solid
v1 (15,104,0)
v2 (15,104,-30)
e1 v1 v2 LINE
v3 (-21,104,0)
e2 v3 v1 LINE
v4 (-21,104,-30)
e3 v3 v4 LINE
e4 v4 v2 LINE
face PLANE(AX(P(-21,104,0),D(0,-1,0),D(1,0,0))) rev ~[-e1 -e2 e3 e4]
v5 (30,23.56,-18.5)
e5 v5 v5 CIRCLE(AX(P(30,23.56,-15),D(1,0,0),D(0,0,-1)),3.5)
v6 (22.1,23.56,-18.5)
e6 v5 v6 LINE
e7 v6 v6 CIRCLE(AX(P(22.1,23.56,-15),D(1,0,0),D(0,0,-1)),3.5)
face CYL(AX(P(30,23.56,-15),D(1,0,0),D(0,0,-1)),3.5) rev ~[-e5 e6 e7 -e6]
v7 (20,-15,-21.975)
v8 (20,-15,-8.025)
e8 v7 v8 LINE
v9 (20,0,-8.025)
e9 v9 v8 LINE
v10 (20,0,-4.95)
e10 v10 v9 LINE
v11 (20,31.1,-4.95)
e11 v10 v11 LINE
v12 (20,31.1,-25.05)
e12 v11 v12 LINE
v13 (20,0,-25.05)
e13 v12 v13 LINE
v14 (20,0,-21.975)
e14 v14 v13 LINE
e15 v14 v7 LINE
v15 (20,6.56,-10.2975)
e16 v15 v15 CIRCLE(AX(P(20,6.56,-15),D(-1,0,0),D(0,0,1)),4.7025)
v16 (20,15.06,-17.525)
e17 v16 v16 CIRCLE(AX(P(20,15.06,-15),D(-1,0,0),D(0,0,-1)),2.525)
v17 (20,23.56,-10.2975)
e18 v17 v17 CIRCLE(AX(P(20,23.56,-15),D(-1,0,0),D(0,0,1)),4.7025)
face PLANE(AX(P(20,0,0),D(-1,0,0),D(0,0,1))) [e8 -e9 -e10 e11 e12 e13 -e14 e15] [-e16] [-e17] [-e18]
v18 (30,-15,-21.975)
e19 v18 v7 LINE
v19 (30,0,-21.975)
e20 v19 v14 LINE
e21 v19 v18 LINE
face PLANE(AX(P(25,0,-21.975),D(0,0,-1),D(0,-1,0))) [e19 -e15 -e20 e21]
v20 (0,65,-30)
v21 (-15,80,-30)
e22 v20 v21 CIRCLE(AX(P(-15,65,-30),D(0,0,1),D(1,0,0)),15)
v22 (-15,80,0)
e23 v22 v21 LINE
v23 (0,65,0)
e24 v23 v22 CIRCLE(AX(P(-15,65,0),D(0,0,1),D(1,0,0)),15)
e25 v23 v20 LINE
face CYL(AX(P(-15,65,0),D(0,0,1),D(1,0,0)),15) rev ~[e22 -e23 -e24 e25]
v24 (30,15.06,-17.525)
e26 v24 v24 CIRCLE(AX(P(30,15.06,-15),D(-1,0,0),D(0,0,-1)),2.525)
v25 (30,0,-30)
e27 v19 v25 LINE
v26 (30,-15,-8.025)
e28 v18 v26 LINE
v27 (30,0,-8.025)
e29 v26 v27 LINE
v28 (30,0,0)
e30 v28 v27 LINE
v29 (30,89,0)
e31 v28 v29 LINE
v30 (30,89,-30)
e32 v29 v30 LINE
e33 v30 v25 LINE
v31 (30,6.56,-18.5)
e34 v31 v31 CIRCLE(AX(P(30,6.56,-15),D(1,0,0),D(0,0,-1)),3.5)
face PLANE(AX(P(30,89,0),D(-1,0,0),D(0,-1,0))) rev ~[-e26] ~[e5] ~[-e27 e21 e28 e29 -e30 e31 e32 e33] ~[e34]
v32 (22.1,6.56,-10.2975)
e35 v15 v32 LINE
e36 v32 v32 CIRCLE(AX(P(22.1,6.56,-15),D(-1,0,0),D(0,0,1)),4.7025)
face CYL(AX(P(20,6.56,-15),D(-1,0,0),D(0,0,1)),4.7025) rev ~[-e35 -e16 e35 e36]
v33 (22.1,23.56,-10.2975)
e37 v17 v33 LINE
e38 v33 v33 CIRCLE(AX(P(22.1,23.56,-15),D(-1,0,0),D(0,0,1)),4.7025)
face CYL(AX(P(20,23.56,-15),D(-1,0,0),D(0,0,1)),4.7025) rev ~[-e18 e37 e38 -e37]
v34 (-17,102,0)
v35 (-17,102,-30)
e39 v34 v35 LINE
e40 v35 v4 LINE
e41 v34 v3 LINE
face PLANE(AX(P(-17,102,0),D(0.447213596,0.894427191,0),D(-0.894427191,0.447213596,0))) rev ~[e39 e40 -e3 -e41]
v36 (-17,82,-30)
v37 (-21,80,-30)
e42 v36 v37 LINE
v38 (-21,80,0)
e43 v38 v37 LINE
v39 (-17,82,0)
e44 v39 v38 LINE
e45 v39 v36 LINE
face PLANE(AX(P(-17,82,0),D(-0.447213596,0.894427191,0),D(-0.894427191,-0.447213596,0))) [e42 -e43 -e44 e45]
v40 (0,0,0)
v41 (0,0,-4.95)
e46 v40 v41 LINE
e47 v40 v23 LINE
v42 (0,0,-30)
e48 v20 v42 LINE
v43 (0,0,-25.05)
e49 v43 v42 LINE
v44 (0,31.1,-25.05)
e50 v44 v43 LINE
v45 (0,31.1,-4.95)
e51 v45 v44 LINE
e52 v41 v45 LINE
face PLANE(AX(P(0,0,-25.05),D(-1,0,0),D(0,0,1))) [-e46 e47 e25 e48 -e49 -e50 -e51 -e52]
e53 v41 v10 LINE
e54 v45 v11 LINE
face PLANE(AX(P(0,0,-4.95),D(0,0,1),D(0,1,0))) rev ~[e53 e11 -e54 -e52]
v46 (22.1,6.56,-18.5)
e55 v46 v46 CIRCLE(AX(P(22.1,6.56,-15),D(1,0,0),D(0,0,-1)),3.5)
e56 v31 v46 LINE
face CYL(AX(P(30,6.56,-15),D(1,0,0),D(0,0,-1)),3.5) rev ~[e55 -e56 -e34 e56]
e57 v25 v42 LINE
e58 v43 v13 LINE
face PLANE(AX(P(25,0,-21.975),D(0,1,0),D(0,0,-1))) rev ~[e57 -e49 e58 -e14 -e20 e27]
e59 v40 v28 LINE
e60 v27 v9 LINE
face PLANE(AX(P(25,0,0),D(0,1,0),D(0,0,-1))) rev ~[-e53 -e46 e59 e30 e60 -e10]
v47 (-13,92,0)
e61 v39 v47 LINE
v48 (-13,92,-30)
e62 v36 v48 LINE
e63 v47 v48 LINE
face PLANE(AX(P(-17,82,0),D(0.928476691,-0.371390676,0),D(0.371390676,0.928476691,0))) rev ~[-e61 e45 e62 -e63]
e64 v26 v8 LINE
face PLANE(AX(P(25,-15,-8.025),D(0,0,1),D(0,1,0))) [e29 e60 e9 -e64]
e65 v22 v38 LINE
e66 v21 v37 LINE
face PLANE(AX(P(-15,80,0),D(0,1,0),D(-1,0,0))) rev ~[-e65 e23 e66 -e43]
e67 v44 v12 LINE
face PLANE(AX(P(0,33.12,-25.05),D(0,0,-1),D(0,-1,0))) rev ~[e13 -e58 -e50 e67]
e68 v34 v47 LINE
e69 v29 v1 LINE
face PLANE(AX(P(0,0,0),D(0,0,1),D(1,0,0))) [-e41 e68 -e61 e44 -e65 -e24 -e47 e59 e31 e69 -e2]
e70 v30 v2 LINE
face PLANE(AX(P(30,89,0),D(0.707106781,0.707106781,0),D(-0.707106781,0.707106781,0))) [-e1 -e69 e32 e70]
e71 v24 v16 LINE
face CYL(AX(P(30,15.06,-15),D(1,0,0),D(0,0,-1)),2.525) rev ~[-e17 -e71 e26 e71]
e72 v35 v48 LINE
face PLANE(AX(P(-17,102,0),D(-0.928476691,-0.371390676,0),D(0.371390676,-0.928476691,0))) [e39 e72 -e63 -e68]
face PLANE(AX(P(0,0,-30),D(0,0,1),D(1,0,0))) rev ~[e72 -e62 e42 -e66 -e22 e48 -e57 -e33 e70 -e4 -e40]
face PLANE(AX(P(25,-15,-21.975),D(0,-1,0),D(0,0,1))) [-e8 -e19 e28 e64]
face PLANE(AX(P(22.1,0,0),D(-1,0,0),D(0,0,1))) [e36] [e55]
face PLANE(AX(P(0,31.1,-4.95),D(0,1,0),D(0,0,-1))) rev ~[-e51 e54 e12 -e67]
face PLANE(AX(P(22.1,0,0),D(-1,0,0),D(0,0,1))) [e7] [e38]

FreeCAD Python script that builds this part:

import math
import FreeCAD as App
import Part
import Sketcher
from FreeCAD import Vector


def add_polygon(sketch, points):
    """Adds a closed chain of lines whose ends are joined by coincident constraints."""
    first, n = sketch.GeometryCount, len(points)
    for a, b in zip(points, points[1:] + points[:1]):
        sketch.addGeometry(Part.LineSegment(App.Vector(*a, 0), App.Vector(*b, 0)), False)
    for i in range(n):
        sketch.addConstraint(Sketcher.Constraint("Coincident", first + i, 2, first + (i + 1) % n, 1))

doc = App.newDocument("Part")
body = doc.addObject("PartDesign::Body", "Body")

sketch1 = body.newObject("Sketcher::SketchObject", "Sketch")
sketch1.AttachmentSupport = (doc.getObject("XY_Plane"), [""])
sketch1.MapMode = "FlatFace"
add_polygon(sketch1, [(0, 40), (0, 0), (25, 0), (25, 40)])
sketch1.addConstraint([
    Sketcher.Constraint("Vertical", 0),
    Sketcher.Constraint("Horizontal", 1),
    Sketcher.Constraint("Vertical", 2),
    Sketcher.Constraint("Horizontal", 3),
    Sketcher.Constraint("Coincident", 0, 2, -1, 1),
    Sketcher.Constraint("DistanceX", 1, 1, 1, 2, 25.0),
    Sketcher.Constraint("DistanceY", 0, 2, 0, 1, 40.0),
])
pad1 = body.newObject("PartDesign::Pad", "Pad")
pad1.Profile = sketch1
pad1.Length = 30
pad1.Reversed = True

sketch2 = body.newObject("Sketcher::SketchObject", "Sketch001")
sketch2.AttachmentSupport = (doc.getObject("YZ_Plane"), [""])
sketch2.MapMode = "FlatFace"
sketch2.AttachmentOffset = App.Placement(Vector(0, 0, 25), App.Rotation())
sketch2.addGeometry(Part.Circle(Vector(6.6, -15, 0), Vector(0, 0, 1), 2.5), False)
sketch2.addConstraint([
    Sketcher.Constraint("Diameter", 0, 4.92),
    Sketcher.Constraint("DistanceY", 0, 3, -1, 1, 15.0),
    Sketcher.Constraint("DistanceX", -1, 1, 0, 3, 6.56),
])
pocket1 = body.newObject("PartDesign::Pocket", "Pocket")
pocket1.Profile = sketch2
pocket1.Length = 30

sketch3 = body.newObject("Sketcher::SketchObject", "Sketch002")
sketch3.AttachmentSupport = (doc.getObject("YZ_Plane"), [""])
sketch3.MapMode = "FlatFace"
add_polygon(sketch3, [(0, -25), (0, -5), (33, -5), (33, -25)])
sketch3.addConstraint([
    Sketcher.Constraint("Vertical", 0),
    Sketcher.Constraint("Horizontal", 1),
    Sketcher.Constraint("Vertical", 2),
    Sketcher.Constraint("Horizontal", 3),
    Sketcher.Constraint("PointOnObject", 0, 2, -2),
    Sketcher.Constraint("DistanceY", 0, 1, 0, 2, 20.1),
    Sketcher.Constraint("DistanceX", 1, 1, 1, 2, 33.12),
    Sketcher.Constraint("DistanceY", 0, 2, -1, 1, 4.95),
])
pocket2 = body.newObject("PartDesign::Pocket", "Pocket001")
pocket2.Profile = sketch3
pocket2.Length = 20
pocket2.Reversed = True

sketch4 = body.newObject("Sketcher::SketchObject", "Sketch003")
sketch4.AttachmentSupport = (doc.getObject("XZ_Plane"), [""])
sketch4.MapMode = "FlatFace"
add_polygon(sketch4, [(25, -8), (20, -8), (20, -22), (25, -22)])
sketch4.addConstraint([
    Sketcher.Constraint("Horizontal", 0),
    Sketcher.Constraint("Vertical", 1),
    Sketcher.Constraint("Horizontal", 2),
    Sketcher.Constraint("Vertical", 3),
    Sketcher.Constraint("DistanceY", 1, 2, 1, 1, 13.95),
    Sketcher.Constraint("DistanceX", 0, 2, 0, 1, 5.0),
    Sketcher.Constraint("DistanceX", -1, 1, 0, 2, 20.0),
    Sketcher.Constraint("DistanceY", 0, 2, -1, 1, 8.025),
])
pad2 = body.newObject("PartDesign::Pad", "Pad001")
pad2.Profile = sketch4
pad2.Length = 15

sketch5 = body.newObject("Sketcher::SketchObject", "Sketch004")
sketch5.AttachmentSupport = (doc.getObject("YZ_Plane"), [""])
sketch5.MapMode = "FlatFace"
sketch5.AttachmentOffset = App.Placement(Vector(0, 0, 20), App.Rotation())
sketch5.addGeometry([
    Part.Circle(Vector(6.6, -15, 0), Vector(0, 0, 1), 4.7),
    Part.Circle(Vector(6.6, -15, 0), Vector(0, 0, 1), 2.5),
], False)
sketch5.addConstraint([
    Sketcher.Constraint("Coincident", 1, 3, 0, 3),
    Sketcher.Constraint("Diameter", 0, 9.405),
    Sketcher.Constraint("Diameter", 1, 4.92),
    Sketcher.Constraint("DistanceY", 0, 3, -1, 1, 15.0),
    Sketcher.Constraint("DistanceX", -1, 1, 0, 3, 6.56),
])
pocket3 = body.newObject("PartDesign::Pocket", "Pocket002")
pocket3.Profile = sketch5
pocket3.Length = 2.1
pocket3.Reversed = True

sketch6 = body.newObject("Sketcher::SketchObject", "Sketch005")
sketch6.AttachmentSupport = (doc.getObject("YZ_Plane"), [""])
sketch6.MapMode = "FlatFace"
sketch6.AttachmentOffset = App.Placement(Vector(0, 0, 25), App.Rotation())
sketch6.addGeometry(Part.Circle(Vector(23.6, -15, 0), Vector(0, 0, 1), 2.5), False)
sketch6.addConstraint([
    Sketcher.Constraint("Diameter", 0, 4.92),
    Sketcher.Constraint("DistanceY", 0, 3, -1, 1, 15.0),
    Sketcher.Constraint("DistanceX", -1, 1, 0, 3, 23.56),
])
pocket4 = body.newObject("PartDesign::Pocket", "Pocket003")
pocket4.Profile = sketch6
pocket4.Length = 10

sketch7 = body.newObject("Sketcher::SketchObject", "Sketch006")
sketch7.AttachmentSupport = (doc.getObject("YZ_Plane"), [""])
sketch7.MapMode = "FlatFace"
sketch7.AttachmentOffset = App.Placement(Vector(0, 0, 20), App.Rotation())
sketch7.addGeometry([
    Part.Circle(Vector(23.6, -15, 0), Vector(0, 0, 1), 4.7),
    Part.Circle(Vector(23.6, -15, 0), Vector(0, 0, 1), 2.5),
], False)
sketch7.addConstraint([
    Sketcher.Constraint("Coincident", 1, 3, 0, 3),
    Sketcher.Constraint("Diameter", 0, 9.405),
    Sketcher.Constraint("Diameter", 1, 4.92),
    Sketcher.Constraint("DistanceY", 0, 3, -1, 1, 15.0),
    Sketcher.Constraint("DistanceX", -1, 1, 0, 3, 23.56),
])
pocket5 = body.newObject("PartDesign::Pocket", "Pocket004")
pocket5.Profile = sketch7
pocket5.Length = 2.1
pocket5.Reversed = True

sketch8 = body.newObject("Sketcher::SketchObject", "Sketch007")
sketch8.AttachmentSupport = (doc.getObject("YZ_Plane"), [""])
sketch8.MapMode = "FlatFace"
sketch8.AttachmentOffset = App.Placement(Vector(0, 0, 25), App.Rotation())
add_polygon(sketch8, [(0, -30), (40, -30), (40, 0), (0, 0), (0, -8), (-15, -8), (-15, -22), (0, -22)])
sketch8.addGeometry(Part.Circle(Vector(6.6, -15, 0), Vector(0, 0, 1), 2.5), False)
sketch8.addGeometry(Part.Circle(Vector(23.6, -15, 0), Vector(0, 0, 1), 2.5), False)
sketch8.addConstraint([
    Sketcher.Constraint("Horizontal", 0),
    Sketcher.Constraint("Vertical", 1),
    Sketcher.Constraint("Horizontal", 2),
    Sketcher.Constraint("Vertical", 3),
    Sketcher.Constraint("Horizontal", 4),
    Sketcher.Constraint("Vertical", 5),
    Sketcher.Constraint("Horizontal", 6),
    Sketcher.Constraint("Vertical", 7),
    Sketcher.Constraint("Coincident", 2, 2, -1, 1),
    Sketcher.Constraint("Equal", 8, 9),
    Sketcher.Constraint("PointOnObject", 6, 2, -2),
    Sketcher.Constraint("Horizontal", 8, 3, 9, 3),
    Sketcher.Constraint("Equal", 3, 7),
    Sketcher.Constraint("Diameter", 8, 4.92),
    Sketcher.Constraint("DistanceX", 0, 1, 0, 2, 40.0),
    Sketcher.Constraint("DistanceX", 4, 2, 4, 1, 15.0),
    Sketcher.Constraint("DistanceY", 1, 1, 1, 2, 30.0),
    Sketcher.Constraint("DistanceY", 8, 3, -1, 1, 15.0),
    Sketcher.Constraint("DistanceX", 8, 3, 9, 3, 17.0),
    Sketcher.Constraint("DistanceY", 5, 2, 5, 1, 13.95),
    Sketcher.Constraint("DistanceX", -1, 1, 8, 3, 6.56),
])
pad3 = body.newObject("PartDesign::Pad", "Pad002")
pad3.Profile = sketch8
pad3.Length = 5

sketch9 = body.newObject("Sketcher::SketchObject", "Sketch008")
sketch9.AttachmentSupport = (doc.getObject("XZ_Plane"), [""])
sketch9.MapMode = "FlatFace"
sketch9.AttachmentOffset = App.Placement(Vector(0, 0, -40), App.Rotation())
add_polygon(sketch9, [(30, -30), (0, -30), (0, 0), (30, 0)])
sketch9.addConstraint([
    Sketcher.Constraint("Horizontal", 0),
    Sketcher.Constraint("Vertical", 1),
    Sketcher.Constraint("Horizontal", 2),
    Sketcher.Constraint("Vertical", 3),
    Sketcher.Constraint("Coincident", 1, 2, -1, 1),
    Sketcher.Constraint("Equal", 2, 1),
    Sketcher.Constraint("DistanceX", 0, 2, 0, 1, 30.0),
])
pad4 = body.newObject("PartDesign::Pad", "Pad003")
pad4.Profile = sketch9
pad4.Length = 10
pad4.Reversed = True

sketch10 = body.newObject("Sketcher::SketchObject", "Sketch009")
sketch10.AttachmentSupport = (doc.getObject("YZ_Plane"), [""])
sketch10.MapMode = "FlatFace"
sketch10.AttachmentOffset = App.Placement(Vector(0, 0, 30), App.Rotation())
sketch10.addGeometry(Part.Circle(Vector(15.1, -15, 0), Vector(0, 0, 1), 2.5), False)
sketch10.addConstraint([
    Sketcher.Constraint("Diameter", 0, 5.05),
    Sketcher.Constraint("DistanceY", 0, 3, -1, 1, 15.0),
    Sketcher.Constraint("DistanceX", -1, 1, 0, 3, 15.06),
])
pocket6 = body.newObject("PartDesign::Pocket", "Pocket005")
pocket6.Profile = sketch10
pocket6.Length = 30

sketch11 = body.newObject("Sketcher::SketchObject", "Sketch010")
sketch11.AttachmentSupport = (doc.getObject("XY_Plane"), [""])
sketch11.MapMode = "FlatFace"
sketch11.addGeometry([
    Part.LineSegment(Vector(0, 50, 0), Vector(30, 50, 0)),
    Part.LineSegment(Vector(30, 50, 0), Vector(30, 89, 0)),
    Part.LineSegment(Vector(30, 89, 0), Vector(15, 104, 0)),
    Part.LineSegment(Vector(15, 104, 0), Vector(-21, 104, 0)),
    Part.LineSegment(Vector(-21, 104, 0), Vector(-17, 102, 0)),
    Part.LineSegment(Vector(-17, 102, 0), Vector(-13, 92, 0)),
    Part.LineSegment(Vector(-13, 92, 0), Vector(-17, 82, 0)),
    Part.LineSegment(Vector(-17, 82, 0), Vector(-21, 80, 0)),
    Part.LineSegment(Vector(-21, 80, 0), Vector(-15, 80, 0)),
    Part.ArcOfCircle(Part.Circle(Vector(-15, 65, 0), Vector(0, 0, 1), 15), math.radians(0), math.radians(90)),
    Part.LineSegment(Vector(0, 65, 0), Vector(0, 50, 0)),
], False)
sketch11.addConstraint([
    Sketcher.Constraint("Coincident", 0, 2, 1, 1),
    Sketcher.Constraint("Coincident", 1, 2, 2, 1),
    Sketcher.Constraint("Coincident", 2, 2, 3, 1),
    Sketcher.Constraint("Coincident", 3, 2, 4, 1),
    Sketcher.Constraint("Coincident", 4, 2, 5, 1),
    Sketcher.Constraint("Coincident", 5, 2, 6, 1),
    Sketcher.Constraint("Coincident", 6, 2, 7, 1),
    Sketcher.Constraint("Coincident", 7, 2, 8, 1),
    Sketcher.Constraint("Tangent", 8, 2, 9, 2),
    Sketcher.Constraint("Tangent", 9, 1, 10, 1),
    Sketcher.Constraint("Coincident", 10, 2, 0, 1),
    Sketcher.Constraint("Horizontal", 0),
    Sketcher.Constraint("Vertical", 1),
    Sketcher.Constraint("Horizontal", 3),
    Sketcher.Constraint("Horizontal", 8),
    Sketcher.Constraint("Vertical", 10),
    Sketcher.Constraint("PointOnObject", 9, 1, -2),
    Sketcher.Constraint("Vertical", 4, 2, 6, 2),
    Sketcher.Constraint("Vertical", 3, 2, 7, 2),
    Sketcher.Constraint("Equal", 5, 6),
    Sketcher.Constraint("Equal", 4, 7),
    Sketcher.Constraint("Radius", 9, 15.0),
    Sketcher.Constraint("DistanceX", 0, 1, 0, 2, 30.0),
    Sketcher.Constraint("DistanceX", 8, 1, 8, 2, 6.0),
    Sketcher.Constraint("DistanceY", 10, 2, 10, 1, 15.0),
    Sketcher.Constraint("DistanceX", -1, 1, 2, 2, 15.0),
    Sketcher.Constraint("DistanceY", 1, 2, 2, 2, 15.0),
    Sketcher.Constraint("DistanceY", 1, 1, 1, 2, 39.0),
    Sketcher.Constraint("DistanceY", -1, 1, 9, 3, 65.0),
    Sketcher.Constraint("DistanceX", 4, 2, -1, 1, 17.0),
    Sketcher.Constraint("DistanceY", -1, 1, 4, 2, 102.0),
    Sketcher.Constraint("DistanceX", 5, 2, -1, 1, 13.0),
])
pad5 = body.newObject("PartDesign::Pad", "Pad004")
pad5.Profile = sketch11
pad5.Length = 30
pad5.Reversed = True

sketch12 = body.newObject("Sketcher::SketchObject", "Sketch011")
sketch12.AttachmentSupport = (doc.getObject("YZ_Plane"), [""])
sketch12.MapMode = "FlatFace"
add_polygon(sketch12, [(33.1, -5), (33.1, -25.1), (31.1, -25.1), (31.1, -5)])
sketch12.addConstraint([
    Sketcher.Constraint("Vertical", 0),
    Sketcher.Constraint("Horizontal", 1),
    Sketcher.Constraint("Vertical", 2),
    Sketcher.Constraint("Horizontal", 3),
    Sketcher.Constraint("DistanceX", 1, 2, 1, 1, 2.02),
    Sketcher.Constraint("DistanceY", 0, 2, 0, 1, 20.1),
    Sketcher.Constraint("DistanceX", -1, 1, 1, 2, 31.1),
    Sketcher.Constraint("DistanceY", 0, 2, -1, 1, 25.05),
])
pad6 = body.newObject("PartDesign::Pad", "Pad005")
pad6.Profile = sketch12
pad6.Length = 20

sketch13 = body.newObject("Sketcher::SketchObject", "Sketch012")
sketch13.AttachmentSupport = (doc.getObject("YZ_Plane"), [""])
sketch13.MapMode = "FlatFace"
sketch13.AttachmentOffset = App.Placement(Vector(0, 0, 30), App.Rotation())
sketch13.addGeometry([
    Part.Circle(Vector(23.6, -15, 0), Vector(0, 0, 1), 3.5),
    Part.Circle(Vector(23.6, -15, 0), Vector(0, 0, 1), 2.5),
    Part.Circle(Vector(6.6, -15, 0), Vector(0, 0, 1), 3.5),
    Part.Circle(Vector(6.6, -15, 0), Vector(0, 0, 1), 2.5),
], False)
sketch13.addConstraint([
    Sketcher.Constraint("Coincident", 1, 3, 0, 3),
    Sketcher.Constraint("Coincident", 3, 3, 2, 3),
    Sketcher.Constraint("Equal", 0, 2),
    Sketcher.Constraint("Equal", 1, 3),
    Sketcher.Constraint("Horizontal", 1, 3, 2, 3),
    Sketcher.Constraint("Diameter", 0, 7.0),
    Sketcher.Constraint("Diameter", 1, 4.92),
    Sketcher.Constraint("DistanceY", 0, 3, -1, 1, 15.0),
    Sketcher.Constraint("DistanceX", 2, 3, 0, 3, 17.0),
    Sketcher.Constraint("DistanceX", -1, 1, 0, 3, 23.56),
])
pocket7 = body.newObject("PartDesign::Pocket", "Pocket006")
pocket7.Profile = sketch13
pocket7.Length = 10

doc.recompute()
